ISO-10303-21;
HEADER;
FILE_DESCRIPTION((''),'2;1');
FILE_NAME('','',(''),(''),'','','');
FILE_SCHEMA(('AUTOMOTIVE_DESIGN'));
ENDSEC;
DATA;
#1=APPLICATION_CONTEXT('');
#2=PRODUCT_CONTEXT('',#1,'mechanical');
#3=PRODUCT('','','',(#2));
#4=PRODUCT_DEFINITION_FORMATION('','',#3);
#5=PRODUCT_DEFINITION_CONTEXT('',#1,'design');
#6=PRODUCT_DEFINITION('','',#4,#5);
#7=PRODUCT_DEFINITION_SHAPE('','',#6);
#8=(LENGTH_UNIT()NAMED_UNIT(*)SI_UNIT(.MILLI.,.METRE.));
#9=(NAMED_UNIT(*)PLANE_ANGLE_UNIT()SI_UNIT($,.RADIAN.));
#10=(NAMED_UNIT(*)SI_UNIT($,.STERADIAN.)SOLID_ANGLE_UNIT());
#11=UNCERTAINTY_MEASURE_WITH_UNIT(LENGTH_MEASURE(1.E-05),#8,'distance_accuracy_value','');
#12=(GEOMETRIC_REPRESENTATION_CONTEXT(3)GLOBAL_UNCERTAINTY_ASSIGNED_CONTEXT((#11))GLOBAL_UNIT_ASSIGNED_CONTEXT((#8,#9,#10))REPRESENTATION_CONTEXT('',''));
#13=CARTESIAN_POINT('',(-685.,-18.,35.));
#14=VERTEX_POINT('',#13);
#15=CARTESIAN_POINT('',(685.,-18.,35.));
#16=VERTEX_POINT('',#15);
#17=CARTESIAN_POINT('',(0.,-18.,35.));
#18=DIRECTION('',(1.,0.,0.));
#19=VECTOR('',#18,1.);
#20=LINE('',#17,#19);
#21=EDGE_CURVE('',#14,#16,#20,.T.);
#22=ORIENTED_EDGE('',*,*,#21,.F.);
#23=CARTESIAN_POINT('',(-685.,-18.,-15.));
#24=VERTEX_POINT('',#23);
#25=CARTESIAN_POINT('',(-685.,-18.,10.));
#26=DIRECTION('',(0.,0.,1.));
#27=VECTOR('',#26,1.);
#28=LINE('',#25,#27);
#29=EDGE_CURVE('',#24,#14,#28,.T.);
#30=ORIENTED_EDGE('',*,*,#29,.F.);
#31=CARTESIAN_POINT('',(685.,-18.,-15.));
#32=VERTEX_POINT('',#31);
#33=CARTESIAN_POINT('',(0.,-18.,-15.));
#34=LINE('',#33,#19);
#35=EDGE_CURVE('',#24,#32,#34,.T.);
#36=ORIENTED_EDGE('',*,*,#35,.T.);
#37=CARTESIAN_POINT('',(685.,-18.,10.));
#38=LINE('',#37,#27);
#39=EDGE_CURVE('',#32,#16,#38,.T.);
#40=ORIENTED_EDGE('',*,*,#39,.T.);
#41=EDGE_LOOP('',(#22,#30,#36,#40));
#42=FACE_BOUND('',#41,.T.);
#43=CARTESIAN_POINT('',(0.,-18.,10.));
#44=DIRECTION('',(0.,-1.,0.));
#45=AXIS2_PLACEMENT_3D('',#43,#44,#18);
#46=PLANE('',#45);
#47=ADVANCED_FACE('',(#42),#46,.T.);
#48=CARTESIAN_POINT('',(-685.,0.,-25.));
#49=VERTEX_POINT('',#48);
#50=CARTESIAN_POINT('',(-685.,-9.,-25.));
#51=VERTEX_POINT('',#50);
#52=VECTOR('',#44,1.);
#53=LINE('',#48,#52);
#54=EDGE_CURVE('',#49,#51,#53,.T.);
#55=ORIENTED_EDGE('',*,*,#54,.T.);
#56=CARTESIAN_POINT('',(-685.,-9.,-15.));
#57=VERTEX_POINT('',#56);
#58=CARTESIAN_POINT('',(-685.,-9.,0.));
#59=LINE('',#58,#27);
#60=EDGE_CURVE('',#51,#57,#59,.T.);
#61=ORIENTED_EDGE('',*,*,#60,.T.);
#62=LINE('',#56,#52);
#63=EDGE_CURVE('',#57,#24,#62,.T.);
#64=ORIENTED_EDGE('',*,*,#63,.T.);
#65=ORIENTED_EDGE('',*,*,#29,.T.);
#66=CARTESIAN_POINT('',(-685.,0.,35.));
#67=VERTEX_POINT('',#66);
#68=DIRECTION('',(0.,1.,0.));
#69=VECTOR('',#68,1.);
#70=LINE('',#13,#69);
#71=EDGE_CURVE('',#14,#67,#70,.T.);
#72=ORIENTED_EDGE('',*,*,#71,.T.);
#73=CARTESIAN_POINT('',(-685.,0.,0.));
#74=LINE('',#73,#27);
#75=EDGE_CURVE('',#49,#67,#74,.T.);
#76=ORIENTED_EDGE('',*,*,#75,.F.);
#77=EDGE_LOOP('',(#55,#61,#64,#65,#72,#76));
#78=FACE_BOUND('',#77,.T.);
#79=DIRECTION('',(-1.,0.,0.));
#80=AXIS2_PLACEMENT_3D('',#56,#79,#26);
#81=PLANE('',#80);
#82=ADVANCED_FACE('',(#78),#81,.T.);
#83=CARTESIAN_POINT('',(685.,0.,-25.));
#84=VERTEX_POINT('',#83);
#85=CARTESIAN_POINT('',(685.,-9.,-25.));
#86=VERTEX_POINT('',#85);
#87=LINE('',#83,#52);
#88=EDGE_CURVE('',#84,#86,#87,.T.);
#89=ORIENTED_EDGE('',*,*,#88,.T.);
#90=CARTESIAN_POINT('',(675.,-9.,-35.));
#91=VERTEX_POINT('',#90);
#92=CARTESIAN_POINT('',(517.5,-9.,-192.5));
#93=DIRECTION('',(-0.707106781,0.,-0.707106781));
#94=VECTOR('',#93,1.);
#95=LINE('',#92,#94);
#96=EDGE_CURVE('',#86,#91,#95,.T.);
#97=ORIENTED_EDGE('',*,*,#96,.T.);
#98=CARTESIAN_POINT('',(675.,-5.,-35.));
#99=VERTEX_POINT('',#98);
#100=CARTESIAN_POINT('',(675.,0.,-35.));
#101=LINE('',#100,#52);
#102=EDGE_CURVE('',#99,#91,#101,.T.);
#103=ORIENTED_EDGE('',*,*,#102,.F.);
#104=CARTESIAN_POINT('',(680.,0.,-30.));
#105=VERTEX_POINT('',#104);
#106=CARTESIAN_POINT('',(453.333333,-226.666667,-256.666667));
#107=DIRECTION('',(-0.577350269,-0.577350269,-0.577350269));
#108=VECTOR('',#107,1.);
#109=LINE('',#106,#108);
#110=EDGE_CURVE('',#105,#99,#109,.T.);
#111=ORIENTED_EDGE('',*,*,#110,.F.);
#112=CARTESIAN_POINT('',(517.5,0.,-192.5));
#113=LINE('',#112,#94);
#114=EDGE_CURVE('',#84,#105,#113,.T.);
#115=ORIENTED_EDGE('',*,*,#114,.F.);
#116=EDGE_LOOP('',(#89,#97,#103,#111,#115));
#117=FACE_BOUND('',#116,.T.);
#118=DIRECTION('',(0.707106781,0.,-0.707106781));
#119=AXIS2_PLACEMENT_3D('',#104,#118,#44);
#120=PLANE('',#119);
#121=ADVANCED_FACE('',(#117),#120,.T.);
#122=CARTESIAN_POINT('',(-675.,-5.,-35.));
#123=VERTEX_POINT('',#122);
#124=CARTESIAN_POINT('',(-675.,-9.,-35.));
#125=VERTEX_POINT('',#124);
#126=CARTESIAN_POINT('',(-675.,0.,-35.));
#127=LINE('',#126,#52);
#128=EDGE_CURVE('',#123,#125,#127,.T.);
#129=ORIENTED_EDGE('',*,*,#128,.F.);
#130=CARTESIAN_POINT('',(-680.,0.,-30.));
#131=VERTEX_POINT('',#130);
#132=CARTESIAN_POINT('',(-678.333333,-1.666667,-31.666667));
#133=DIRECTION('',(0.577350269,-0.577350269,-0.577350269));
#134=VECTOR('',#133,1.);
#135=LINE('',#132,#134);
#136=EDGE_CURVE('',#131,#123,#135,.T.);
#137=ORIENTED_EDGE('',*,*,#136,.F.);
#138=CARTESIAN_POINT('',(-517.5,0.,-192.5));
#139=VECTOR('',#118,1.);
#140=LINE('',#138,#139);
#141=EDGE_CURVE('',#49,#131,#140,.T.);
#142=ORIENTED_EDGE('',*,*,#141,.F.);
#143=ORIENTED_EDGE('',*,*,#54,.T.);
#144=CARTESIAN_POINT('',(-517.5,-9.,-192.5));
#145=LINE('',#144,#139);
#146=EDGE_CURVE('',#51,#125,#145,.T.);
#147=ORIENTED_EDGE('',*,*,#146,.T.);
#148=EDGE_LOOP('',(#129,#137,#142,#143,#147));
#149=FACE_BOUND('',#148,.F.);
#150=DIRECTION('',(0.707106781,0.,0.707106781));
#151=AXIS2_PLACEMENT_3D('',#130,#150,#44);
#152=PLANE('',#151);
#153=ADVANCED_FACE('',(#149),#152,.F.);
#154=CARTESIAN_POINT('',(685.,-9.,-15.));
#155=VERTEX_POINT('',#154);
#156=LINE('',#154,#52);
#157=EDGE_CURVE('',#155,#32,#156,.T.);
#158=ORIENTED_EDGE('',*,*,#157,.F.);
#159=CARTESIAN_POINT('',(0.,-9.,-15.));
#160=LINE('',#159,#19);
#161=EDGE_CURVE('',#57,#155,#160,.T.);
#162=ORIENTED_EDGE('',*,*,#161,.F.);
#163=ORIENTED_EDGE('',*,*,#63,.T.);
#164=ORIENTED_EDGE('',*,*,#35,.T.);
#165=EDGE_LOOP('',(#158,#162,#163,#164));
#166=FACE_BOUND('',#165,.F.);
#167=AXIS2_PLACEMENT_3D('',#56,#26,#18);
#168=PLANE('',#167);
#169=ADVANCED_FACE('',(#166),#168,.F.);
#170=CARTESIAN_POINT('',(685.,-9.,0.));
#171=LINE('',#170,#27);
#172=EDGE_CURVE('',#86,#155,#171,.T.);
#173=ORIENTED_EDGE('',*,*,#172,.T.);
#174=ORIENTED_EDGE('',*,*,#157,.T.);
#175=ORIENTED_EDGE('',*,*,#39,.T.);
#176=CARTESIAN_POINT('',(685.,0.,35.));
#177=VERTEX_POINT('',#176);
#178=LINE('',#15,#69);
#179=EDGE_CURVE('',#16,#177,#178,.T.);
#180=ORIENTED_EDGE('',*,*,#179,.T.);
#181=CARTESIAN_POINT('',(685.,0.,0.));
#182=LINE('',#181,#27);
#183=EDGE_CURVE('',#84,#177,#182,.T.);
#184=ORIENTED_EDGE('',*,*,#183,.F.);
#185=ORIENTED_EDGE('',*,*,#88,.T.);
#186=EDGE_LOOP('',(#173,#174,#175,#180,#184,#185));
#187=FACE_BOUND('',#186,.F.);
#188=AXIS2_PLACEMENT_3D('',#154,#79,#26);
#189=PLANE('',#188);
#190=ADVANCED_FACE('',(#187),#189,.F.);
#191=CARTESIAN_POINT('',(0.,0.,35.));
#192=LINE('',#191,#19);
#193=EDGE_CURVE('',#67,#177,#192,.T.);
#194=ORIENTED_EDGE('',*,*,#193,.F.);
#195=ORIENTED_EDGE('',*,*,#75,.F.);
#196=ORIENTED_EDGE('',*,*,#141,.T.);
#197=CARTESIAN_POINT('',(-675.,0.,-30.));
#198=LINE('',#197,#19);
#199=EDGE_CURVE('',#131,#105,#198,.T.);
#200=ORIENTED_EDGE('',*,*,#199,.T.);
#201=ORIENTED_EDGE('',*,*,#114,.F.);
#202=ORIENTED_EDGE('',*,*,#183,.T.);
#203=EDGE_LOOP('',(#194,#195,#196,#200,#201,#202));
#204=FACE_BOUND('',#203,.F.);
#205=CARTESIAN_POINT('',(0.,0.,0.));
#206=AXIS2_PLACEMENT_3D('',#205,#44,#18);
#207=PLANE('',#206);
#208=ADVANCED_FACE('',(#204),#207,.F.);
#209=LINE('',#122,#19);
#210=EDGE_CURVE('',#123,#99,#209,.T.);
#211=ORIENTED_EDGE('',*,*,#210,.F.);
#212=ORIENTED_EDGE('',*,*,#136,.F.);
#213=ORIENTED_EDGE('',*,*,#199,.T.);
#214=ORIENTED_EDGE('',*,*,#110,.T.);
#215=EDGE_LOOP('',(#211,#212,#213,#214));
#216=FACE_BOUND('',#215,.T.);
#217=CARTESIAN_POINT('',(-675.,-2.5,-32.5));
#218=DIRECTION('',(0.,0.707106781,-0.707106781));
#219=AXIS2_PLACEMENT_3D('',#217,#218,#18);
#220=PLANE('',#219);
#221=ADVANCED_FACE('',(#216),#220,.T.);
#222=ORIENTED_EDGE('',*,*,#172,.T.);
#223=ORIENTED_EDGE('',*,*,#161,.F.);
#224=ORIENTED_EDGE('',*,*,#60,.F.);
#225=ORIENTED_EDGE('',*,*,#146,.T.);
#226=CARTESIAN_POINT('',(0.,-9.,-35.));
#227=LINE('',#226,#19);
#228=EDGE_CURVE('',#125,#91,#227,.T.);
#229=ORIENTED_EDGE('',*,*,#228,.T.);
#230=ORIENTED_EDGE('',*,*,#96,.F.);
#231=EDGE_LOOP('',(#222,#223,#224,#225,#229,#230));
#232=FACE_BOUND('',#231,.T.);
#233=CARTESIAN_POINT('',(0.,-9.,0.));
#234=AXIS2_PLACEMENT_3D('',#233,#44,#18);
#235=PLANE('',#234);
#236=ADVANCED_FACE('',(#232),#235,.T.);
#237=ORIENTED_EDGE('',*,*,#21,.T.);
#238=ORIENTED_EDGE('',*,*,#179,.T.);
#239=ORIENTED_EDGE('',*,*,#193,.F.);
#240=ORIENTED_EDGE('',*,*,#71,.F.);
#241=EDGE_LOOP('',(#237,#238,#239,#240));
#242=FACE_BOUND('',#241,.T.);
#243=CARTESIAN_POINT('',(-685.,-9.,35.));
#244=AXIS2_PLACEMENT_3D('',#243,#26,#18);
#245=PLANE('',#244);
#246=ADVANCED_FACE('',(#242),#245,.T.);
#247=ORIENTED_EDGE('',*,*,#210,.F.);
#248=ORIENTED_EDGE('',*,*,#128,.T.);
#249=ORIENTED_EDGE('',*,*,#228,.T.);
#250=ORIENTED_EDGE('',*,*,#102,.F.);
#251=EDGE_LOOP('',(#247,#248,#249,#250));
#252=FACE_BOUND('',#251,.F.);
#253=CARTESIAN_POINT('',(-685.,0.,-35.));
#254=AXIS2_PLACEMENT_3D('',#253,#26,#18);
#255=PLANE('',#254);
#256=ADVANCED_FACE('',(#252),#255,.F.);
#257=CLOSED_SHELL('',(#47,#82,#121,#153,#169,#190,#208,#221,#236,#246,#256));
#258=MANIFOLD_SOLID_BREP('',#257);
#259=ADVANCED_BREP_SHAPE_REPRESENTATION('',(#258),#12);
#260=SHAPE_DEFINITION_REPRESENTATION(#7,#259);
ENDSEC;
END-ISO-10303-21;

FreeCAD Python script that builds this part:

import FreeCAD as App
import Part
import Sketcher

V = App.Vector


def edges_at(feature, points):
    """Names of the edges that pass closest to the given points."""
    edges = feature.Shape.Edges
    near = lambda p: min(range(len(edges)), key=lambda i: edges[i].distToShape(Part.Vertex(*p))[0])
    return sorted({f"Edge{near(p) + 1}" for p in points})

doc = App.newDocument("Part")
body = doc.addObject("PartDesign::Body", "Body")

# Sketch on XZ plane
sketch1 = body.newObject("Sketcher::SketchObject", "Sketch")
sketch1.AttachmentSupport = (doc.getObject("XZ_Plane"), [""])
sketch1.MapMode = "FlatFace"
sketch1.addGeometry([
    Part.LineSegment(V(-685, 35, 0), V(-685, -35, 0)),
    Part.LineSegment(V(-685, -35, 0), V(685, -35, 0)),
    Part.LineSegment(V(685, -35, 0), V(685, 35, 0)),
    Part.LineSegment(V(685, 35, 0), V(-685, 35, 0)),
], False)
sketch1.addConstraint([
    Sketcher.Constraint("Coincident", 0, 2, 1, 1),
    Sketcher.Constraint("Coincident", 1, 2, 2, 1),
    Sketcher.Constraint("Coincident", 2, 2, 3, 1),
    Sketcher.Constraint("Coincident", 3, 2, 0, 1),
    Sketcher.Constraint("Vertical", 0),
    Sketcher.Constraint("Horizontal", 1),
    Sketcher.Constraint("Vertical", 2),
    Sketcher.Constraint("Horizontal", 3),
    Sketcher.Constraint("Symmetric", 0, 2, 2, 2, -1, 1),
    Sketcher.Constraint("DistanceX", 1, 1, 1, 2, 1370.0),
    Sketcher.Constraint("DistanceY", 0, 2, 0, 1, 70.0),
])
pad1 = body.newObject("PartDesign::Pad", "Pad")
pad1.Profile = sketch1
pad1.Length = 9

# Sketch on XZ plane
sketch2 = body.newObject("Sketcher::SketchObject", "Sketch001")
sketch2.AttachmentSupport = (doc.getObject("XZ_Plane"), [""])
sketch2.MapMode = "FlatFace"
sketch2.AttachmentOffset = App.Placement(V(0, 0, 9), App.Rotation())
sketch2.addGeometry([
    Part.LineSegment(V(-685, 35, 0), V(-685, -15, 0)),
    Part.LineSegment(V(-685, -15, 0), V(685, -15, 0)),
    Part.LineSegment(V(685, -15, 0), V(685, 35, 0)),
    Part.LineSegment(V(685, 35, 0), V(-685, 35, 0)),
], False)
sketch2.addConstraint([
    Sketcher.Constraint("Coincident", 0, 2, 1, 1),
    Sketcher.Constraint("Coincident", 1, 2, 2, 1),
    Sketcher.Constraint("Coincident", 2, 2, 3, 1),
    Sketcher.Constraint("Coincident", 3, 2, 0, 1),
    Sketcher.Constraint("Vertical", 0),
    Sketcher.Constraint("Horizontal", 1),
    Sketcher.Constraint("Vertical", 2),
    Sketcher.Constraint("Horizontal", 3),
    Sketcher.Constraint("DistanceX", 1, 1, 1, 2, 1370.0),
    Sketcher.Constraint("DistanceY", 0, 2, 0, 1, 50.0),
    Sketcher.Constraint("DistanceX", 0, 2, -1, 1, 685.0),
    Sketcher.Constraint("DistanceY", 0, 2, -1, 1, 15.0),
])
pad2 = body.newObject("PartDesign::Pad", "Pad001")
pad2.Profile = sketch2
pad2.Length = 9
doc.recompute()

chamfer = body.newObject("PartDesign::Chamfer", "Chamfer")
chamfer.Base = (pad2, edges_at(pad2, [(685, -4.5, -35), (-685, -4.5, -35)]))
chamfer.Size = 10
doc.recompute()

chamfer2 = body.newObject("PartDesign::Chamfer", "Chamfer001")
chamfer2.Base = (chamfer, edges_at(chamfer, [(0, 0, -35)]))
chamfer2.Size = 5

doc.recompute()
